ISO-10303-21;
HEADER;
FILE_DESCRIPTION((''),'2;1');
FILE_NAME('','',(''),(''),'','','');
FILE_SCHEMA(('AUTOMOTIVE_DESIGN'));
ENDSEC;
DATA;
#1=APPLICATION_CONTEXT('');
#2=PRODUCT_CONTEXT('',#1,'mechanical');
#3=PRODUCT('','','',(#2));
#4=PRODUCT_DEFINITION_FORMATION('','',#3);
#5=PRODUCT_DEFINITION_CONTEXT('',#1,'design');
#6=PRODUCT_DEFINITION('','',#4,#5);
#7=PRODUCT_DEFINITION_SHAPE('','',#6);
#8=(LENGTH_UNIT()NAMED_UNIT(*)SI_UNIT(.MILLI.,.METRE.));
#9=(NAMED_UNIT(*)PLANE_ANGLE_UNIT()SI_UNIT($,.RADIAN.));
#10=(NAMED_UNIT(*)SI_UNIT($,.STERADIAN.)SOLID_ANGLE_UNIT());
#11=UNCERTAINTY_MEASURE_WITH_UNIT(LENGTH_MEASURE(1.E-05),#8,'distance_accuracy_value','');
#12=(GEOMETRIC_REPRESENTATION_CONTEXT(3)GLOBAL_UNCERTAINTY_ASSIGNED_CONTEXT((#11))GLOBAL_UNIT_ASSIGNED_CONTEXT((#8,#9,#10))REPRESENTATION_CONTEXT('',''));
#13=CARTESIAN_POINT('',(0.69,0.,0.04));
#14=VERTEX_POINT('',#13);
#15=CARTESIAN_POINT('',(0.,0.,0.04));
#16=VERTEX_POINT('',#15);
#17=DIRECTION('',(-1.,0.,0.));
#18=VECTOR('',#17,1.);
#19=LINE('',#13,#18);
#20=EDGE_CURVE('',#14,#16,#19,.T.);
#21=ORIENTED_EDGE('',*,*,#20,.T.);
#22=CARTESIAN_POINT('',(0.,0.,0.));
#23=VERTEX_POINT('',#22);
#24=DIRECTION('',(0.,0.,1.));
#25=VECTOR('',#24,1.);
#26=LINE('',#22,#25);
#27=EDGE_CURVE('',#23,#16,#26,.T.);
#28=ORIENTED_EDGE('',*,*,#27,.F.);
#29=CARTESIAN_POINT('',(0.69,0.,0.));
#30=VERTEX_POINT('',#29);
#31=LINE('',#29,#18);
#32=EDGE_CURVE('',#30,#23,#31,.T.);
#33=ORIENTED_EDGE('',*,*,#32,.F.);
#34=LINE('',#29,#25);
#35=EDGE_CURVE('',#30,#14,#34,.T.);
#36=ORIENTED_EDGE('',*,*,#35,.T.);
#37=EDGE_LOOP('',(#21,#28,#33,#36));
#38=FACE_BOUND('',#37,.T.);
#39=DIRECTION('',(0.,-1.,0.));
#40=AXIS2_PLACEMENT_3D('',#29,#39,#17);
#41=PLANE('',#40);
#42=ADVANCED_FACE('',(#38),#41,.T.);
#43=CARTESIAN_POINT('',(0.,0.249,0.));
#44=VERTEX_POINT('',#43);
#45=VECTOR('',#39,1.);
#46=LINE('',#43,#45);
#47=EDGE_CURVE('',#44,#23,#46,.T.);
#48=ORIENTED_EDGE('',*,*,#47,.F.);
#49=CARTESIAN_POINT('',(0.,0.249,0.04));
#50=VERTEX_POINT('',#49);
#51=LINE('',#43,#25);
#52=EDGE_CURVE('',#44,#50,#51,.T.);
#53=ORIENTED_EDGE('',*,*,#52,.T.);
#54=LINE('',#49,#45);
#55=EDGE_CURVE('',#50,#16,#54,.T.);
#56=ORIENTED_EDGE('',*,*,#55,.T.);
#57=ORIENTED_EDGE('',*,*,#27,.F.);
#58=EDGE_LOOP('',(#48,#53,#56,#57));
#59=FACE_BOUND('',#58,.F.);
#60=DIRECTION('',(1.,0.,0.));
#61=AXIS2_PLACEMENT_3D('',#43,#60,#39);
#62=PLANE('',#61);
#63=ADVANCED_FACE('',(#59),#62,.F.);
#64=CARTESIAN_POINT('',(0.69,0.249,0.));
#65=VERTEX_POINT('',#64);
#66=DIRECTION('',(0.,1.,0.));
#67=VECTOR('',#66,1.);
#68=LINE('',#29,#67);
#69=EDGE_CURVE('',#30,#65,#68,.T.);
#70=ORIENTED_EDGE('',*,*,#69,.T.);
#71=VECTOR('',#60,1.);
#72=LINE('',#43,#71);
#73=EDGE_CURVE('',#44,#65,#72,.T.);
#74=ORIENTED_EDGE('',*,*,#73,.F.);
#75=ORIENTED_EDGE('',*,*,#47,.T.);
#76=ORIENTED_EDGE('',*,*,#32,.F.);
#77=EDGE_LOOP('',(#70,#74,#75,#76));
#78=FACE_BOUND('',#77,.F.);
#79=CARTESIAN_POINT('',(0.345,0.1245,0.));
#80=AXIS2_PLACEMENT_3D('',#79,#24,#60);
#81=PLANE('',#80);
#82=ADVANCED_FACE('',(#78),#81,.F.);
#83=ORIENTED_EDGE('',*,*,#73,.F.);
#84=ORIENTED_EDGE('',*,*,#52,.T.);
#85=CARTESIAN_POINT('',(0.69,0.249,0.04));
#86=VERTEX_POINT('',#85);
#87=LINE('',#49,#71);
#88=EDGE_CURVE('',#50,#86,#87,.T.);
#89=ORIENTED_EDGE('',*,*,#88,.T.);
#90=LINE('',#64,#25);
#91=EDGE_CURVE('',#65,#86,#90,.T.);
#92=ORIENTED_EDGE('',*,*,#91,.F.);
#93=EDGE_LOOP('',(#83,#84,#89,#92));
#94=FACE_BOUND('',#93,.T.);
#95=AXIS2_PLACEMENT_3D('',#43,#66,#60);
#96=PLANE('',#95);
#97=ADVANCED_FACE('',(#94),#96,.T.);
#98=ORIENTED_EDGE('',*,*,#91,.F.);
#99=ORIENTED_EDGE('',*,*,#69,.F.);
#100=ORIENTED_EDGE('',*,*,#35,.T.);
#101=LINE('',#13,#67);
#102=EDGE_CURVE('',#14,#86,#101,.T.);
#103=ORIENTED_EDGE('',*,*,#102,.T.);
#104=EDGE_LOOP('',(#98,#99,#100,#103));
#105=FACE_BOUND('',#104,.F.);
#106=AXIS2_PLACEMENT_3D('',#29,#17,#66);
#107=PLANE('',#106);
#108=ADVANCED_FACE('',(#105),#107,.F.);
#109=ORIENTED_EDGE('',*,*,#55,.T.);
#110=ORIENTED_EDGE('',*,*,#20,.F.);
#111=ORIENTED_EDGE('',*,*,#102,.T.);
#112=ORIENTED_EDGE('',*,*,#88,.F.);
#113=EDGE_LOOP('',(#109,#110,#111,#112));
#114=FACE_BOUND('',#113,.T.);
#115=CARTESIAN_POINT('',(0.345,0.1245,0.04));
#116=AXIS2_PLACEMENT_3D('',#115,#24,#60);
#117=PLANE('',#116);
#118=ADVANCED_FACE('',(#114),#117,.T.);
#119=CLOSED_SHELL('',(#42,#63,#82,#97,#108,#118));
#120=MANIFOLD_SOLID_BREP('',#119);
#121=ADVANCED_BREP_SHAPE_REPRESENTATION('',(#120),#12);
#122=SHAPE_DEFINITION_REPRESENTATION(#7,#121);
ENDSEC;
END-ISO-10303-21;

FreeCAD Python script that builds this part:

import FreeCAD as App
import Part
import Sketcher


def add_polygon(sketch, points):
    """Adds a closed chain of lines whose ends are joined by coincident constraints."""
    first, n = sketch.GeometryCount, len(points)
    for a, b in zip(points, points[1:] + points[:1]):
        sketch.addGeometry(Part.LineSegment(App.Vector(*a, 0), App.Vector(*b, 0)), False)
    for i in range(n):
        sketch.addConstraint(Sketcher.Constraint("Coincident", first + i, 2, first + (i + 1) % n, 1))

doc = App.newDocument("Part")
body = doc.addObject("PartDesign::Body", "Body")

# Sketch on XY plane
sketch1 = body.newObject("Sketcher::SketchObject", "Sketch")
sketch1.AttachmentSupport = (doc.getObject("XY_Plane"), [""])
sketch1.MapMode = "FlatFace"
add_polygon(sketch1, [(0.69, 0.25), (0, 0.25), (0, 0), (0.69, 0)])  # lines 0-3
sketch1.addConstraint([
    Sketcher.Constraint("Horizontal", 0),
    Sketcher.Constraint("Vertical", 1),
    Sketcher.Constraint("Horizontal", 2),
    Sketcher.Constraint("Vertical", 3),
    Sketcher.Constraint("Coincident", 1, 2, -1, 1),
    Sketcher.Constraint("DistanceX", 0, 2, 0, 1, 0.69),
    Sketcher.Constraint("DistanceY", 1, 2, 1, 1, 0.249),
])
pad1 = body.newObject("PartDesign::Pad", "Pad")
pad1.Profile = sketch1
pad1.Length = 0.04

doc.recompute()
